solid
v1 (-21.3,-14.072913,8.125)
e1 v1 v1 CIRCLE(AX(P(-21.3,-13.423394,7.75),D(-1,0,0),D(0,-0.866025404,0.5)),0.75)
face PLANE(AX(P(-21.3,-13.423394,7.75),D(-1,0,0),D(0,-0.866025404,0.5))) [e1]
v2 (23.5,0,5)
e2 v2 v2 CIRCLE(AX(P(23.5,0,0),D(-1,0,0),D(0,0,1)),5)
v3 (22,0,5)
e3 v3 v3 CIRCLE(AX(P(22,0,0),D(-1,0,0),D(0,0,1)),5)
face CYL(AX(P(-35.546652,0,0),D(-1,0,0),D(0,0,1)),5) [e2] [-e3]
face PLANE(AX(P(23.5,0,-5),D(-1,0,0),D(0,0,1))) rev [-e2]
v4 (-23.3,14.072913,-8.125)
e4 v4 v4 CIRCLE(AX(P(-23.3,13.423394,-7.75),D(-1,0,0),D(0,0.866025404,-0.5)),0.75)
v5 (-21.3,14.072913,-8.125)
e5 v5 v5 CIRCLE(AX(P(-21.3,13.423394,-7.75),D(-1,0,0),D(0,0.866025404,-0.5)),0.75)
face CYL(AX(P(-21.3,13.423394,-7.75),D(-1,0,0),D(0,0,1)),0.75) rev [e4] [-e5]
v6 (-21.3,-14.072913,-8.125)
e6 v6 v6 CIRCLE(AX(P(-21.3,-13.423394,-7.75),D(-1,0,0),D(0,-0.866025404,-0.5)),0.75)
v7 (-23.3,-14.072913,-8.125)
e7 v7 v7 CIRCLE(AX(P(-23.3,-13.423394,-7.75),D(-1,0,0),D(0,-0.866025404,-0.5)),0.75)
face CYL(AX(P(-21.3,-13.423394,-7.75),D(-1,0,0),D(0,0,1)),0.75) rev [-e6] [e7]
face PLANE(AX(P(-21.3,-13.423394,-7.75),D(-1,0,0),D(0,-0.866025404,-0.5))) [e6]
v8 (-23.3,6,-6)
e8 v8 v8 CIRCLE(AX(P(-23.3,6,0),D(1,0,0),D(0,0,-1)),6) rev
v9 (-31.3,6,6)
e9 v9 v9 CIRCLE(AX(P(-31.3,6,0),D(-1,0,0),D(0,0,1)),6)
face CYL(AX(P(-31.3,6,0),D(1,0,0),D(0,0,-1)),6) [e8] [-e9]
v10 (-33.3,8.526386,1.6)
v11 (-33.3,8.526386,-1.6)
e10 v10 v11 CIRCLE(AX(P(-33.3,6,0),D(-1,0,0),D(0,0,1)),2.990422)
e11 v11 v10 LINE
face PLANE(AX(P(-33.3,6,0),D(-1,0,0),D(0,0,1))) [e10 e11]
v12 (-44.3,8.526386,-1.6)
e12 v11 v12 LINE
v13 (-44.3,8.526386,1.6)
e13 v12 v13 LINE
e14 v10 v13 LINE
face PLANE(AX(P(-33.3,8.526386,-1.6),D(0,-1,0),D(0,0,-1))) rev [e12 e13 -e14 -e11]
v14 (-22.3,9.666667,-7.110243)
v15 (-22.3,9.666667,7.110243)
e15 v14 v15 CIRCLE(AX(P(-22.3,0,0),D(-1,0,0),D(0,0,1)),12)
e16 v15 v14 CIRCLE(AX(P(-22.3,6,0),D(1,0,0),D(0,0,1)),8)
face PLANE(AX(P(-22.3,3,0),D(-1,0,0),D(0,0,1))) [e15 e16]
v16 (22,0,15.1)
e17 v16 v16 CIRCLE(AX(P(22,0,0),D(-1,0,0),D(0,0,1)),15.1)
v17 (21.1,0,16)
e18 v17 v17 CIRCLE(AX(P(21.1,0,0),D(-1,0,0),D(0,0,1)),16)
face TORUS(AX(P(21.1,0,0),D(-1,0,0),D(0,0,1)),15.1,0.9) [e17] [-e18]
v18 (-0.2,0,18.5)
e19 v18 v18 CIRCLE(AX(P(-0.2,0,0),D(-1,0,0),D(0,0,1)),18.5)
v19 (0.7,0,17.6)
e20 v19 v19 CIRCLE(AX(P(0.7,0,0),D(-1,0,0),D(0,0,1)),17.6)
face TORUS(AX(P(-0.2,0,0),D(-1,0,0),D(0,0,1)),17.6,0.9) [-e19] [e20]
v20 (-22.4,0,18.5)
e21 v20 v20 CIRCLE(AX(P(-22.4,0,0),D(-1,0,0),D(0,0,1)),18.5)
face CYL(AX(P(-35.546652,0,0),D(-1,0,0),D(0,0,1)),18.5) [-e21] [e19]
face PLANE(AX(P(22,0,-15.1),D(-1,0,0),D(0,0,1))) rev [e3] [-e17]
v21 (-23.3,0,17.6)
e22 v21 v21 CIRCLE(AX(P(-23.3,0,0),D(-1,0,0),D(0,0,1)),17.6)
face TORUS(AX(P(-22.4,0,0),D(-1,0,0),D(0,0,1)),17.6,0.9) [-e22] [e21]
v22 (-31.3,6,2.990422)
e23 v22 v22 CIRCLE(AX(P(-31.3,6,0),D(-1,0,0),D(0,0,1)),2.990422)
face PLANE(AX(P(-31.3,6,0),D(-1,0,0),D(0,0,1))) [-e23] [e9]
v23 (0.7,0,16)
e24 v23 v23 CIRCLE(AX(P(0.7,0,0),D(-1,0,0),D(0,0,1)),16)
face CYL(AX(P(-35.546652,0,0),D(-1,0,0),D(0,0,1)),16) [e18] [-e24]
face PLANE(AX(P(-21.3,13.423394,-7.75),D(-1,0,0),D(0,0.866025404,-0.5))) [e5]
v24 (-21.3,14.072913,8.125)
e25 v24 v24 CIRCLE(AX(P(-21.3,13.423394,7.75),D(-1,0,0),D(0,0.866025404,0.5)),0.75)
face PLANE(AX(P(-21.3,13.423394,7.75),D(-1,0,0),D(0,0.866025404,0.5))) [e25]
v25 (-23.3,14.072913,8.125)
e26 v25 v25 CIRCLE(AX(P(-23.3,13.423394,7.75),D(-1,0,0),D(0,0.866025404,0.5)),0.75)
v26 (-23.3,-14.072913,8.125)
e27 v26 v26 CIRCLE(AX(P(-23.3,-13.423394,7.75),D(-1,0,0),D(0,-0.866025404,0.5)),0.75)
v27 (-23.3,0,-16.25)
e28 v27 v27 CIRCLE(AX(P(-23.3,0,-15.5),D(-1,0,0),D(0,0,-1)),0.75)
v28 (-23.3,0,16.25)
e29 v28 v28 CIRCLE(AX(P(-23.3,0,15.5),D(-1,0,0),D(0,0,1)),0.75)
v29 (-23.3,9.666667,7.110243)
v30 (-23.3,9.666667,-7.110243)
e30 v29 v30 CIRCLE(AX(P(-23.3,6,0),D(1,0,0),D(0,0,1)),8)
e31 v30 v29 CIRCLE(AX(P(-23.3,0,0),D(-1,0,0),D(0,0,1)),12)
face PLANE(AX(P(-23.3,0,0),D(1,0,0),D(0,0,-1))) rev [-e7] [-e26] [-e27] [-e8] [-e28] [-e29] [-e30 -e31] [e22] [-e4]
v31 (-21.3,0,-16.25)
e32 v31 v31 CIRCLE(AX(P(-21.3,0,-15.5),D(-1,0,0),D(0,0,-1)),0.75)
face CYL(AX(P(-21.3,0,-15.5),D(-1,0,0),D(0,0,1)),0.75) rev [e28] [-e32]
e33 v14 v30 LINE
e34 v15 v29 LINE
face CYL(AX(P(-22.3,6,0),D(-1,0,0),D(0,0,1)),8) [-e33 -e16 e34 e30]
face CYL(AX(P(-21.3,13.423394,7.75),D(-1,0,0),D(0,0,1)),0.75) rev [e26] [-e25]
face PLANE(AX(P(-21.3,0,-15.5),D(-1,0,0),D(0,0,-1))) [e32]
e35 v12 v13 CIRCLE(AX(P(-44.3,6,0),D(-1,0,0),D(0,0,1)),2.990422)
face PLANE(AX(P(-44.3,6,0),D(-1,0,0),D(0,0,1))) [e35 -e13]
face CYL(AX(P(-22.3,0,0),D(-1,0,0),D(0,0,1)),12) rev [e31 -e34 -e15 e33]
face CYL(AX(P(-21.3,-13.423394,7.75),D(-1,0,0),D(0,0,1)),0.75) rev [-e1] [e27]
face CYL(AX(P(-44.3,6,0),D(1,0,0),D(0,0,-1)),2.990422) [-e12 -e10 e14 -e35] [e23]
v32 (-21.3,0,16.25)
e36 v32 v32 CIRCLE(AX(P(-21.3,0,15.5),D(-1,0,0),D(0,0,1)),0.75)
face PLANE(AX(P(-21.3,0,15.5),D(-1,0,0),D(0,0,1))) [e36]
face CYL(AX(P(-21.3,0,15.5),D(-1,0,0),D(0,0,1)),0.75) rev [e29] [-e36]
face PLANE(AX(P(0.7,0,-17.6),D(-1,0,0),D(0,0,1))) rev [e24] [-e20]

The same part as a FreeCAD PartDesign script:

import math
import FreeCAD as App
import Part
import Sketcher
from FreeCAD import Vector
Q = App.Units.Quantity

doc = App.newDocument("Part")
body = doc.addObject("PartDesign::Body", "Body")

sketch1 = body.newObject("Sketcher::SketchObject", "Sketch")
sketch1.AttachmentSupport = (doc.getObject("XZ_Plane"), [""])
sketch1.MapMode = "FlatFace"
sketch1.addGeometry(Part.LineSegment(Vector(-23.3, 0, 0), Vector(23.5, 0, 0)), False)
sketch1.addGeometry(Part.LineSegment(Vector(23.5, 0, 0), Vector(23.5, -5, 0)), False)
sketch1.addGeometry(Part.LineSegment(Vector(23.5, -5, 0), Vector(22, -5, 0)), False)
sketch1.addGeometry(Part.LineSegment(Vector(22, -5, 0), Vector(22, -15.1, 0)), False)
sketch1.addGeometry(Part.ArcOfCircle(Part.Circle(Vector(21.1, -15.1, 0), Vector(0, 0, 1), 0.9), math.radians(-90), math.radians(0)), False)
sketch1.addGeometry(Part.LineSegment(Vector(21.1, -16, 0), Vector(0.7, -16, 0)), False)
sketch1.addGeometry(Part.LineSegment(Vector(0.7, -16, 0), Vector(0.7, -17.6, 0)), False)
sketch1.addGeometry(Part.ArcOfCircle(Part.Circle(Vector(-0.2, -17.6, 0), Vector(0, 0, 1), 0.9), math.radians(-90), math.radians(0)), False)
sketch1.addGeometry(Part.LineSegment(Vector(-0.2, -18.5, 0), Vector(-22.4, -18.5, 0)), False)
sketch1.addGeometry(Part.ArcOfCircle(Part.Circle(Vector(-22.4, -17.6, 0), Vector(0, 0, 1), 0.9), math.radians(180), math.radians(270)), False)
sketch1.addGeometry(Part.LineSegment(Vector(-23.3, -17.6, 0), Vector(-23.3, 0, 0)), False)
sketch1.addConstraint(Sketcher.Constraint("Coincident", 0, 2, 1, 1))
sketch1.addConstraint(Sketcher.Constraint("Coincident", 1, 2, 2, 1))
sketch1.addConstraint(Sketcher.Constraint("Coincident", 2, 2, 3, 1))
sketch1.addConstraint(Sketcher.Constraint("Tangent", 3, 2, 4, 2))
sketch1.addConstraint(Sketcher.Constraint("Tangent", 4, 1, 5, 1))
sketch1.addConstraint(Sketcher.Constraint("Coincident", 5, 2, 6, 1))
sketch1.addConstraint(Sketcher.Constraint("Tangent", 6, 2, 7, 2))
sketch1.addConstraint(Sketcher.Constraint("Tangent", 7, 1, 8, 1))
sketch1.addConstraint(Sketcher.Constraint("Tangent", 8, 2, 9, 2))
sketch1.addConstraint(Sketcher.Constraint("Tangent", 9, 1, 10, 1))
sketch1.addConstraint(Sketcher.Constraint("Coincident", 10, 2, 0, 1))
sketch1.addConstraint(Sketcher.Constraint("Horizontal", 0))
sketch1.addConstraint(Sketcher.Constraint("Vertical", 1))
sketch1.addConstraint(Sketcher.Constraint("Horizontal", 2))
sketch1.addConstraint(Sketcher.Constraint("Vertical", 3))
sketch1.addConstraint(Sketcher.Constraint("Horizontal", 5))
sketch1.addConstraint(Sketcher.Constraint("Vertical", 6))
sketch1.addConstraint(Sketcher.Constraint("Horizontal", 8))
sketch1.addConstraint(Sketcher.Constraint("Vertical", 10))
sketch1.addConstraint(Sketcher.Constraint("Equal", 4, 7))
sketch1.addConstraint(Sketcher.Constraint("Equal", 7, 9))
sketch1.addConstraint(Sketcher.Constraint("PointOnObject", 0, 2, -1))
sketch1.addConstraint(Sketcher.Constraint("Radius", 4, Q("0.9 mm")))
sketch1.addConstraint(Sketcher.Constraint("DistanceY", 1, 2, 1, 1, Q("5 mm")))
sketch1.addConstraint(Sketcher.Constraint("DistanceX", 0, 1, 0, 2, Q("46.8 mm")))
sketch1.addConstraint(Sketcher.Constraint("DistanceX", 2, 2, 2, 1, Q("1.5 mm")))
sketch1.addConstraint(Sketcher.Constraint("DistanceX", 5, 2, 5, 1, Q("20.4 mm")))
sketch1.addConstraint(Sketcher.Constraint("DistanceY", 3, 2, 3, 1, Q("10.1 mm")))
sketch1.addConstraint(Sketcher.Constraint("DistanceY", 6, 2, 6, 1, Q("1.6 mm")))
sketch1.addConstraint(Sketcher.Constraint("DistanceX", -1, 1, 2, 2, Q("22 mm")))
revolution = body.newObject("PartDesign::Revolution", "Revolution")
revolution.Profile = sketch1
revolution.ReferenceAxis = (sketch1, ["H_Axis"])
revolution.Angle = 360

sketch2 = body.newObject("Sketcher::SketchObject", "Sketch001")
sketch2.AttachmentSupport = (doc.getObject("YZ_Plane"), [""])
sketch2.MapMode = "FlatFace"
sketch2.AttachmentOffset = App.Placement(Vector(0, 0, -23.3), App.Rotation())
sketch2.addGeometry(Part.Circle(Vector(6, 0, 0), Vector(0, 0, 1), 6), False)
sketch2.addConstraint(Sketcher.Constraint("PointOnObject", 0, 3, -1))
sketch2.addConstraint(Sketcher.Constraint("Diameter", 0, Q("12 mm")))
sketch2.addConstraint(Sketcher.Constraint("DistanceX", -1, 1, 0, 3, Q("6 mm")))
pad1 = body.newObject("PartDesign::Pad", "Pad")
pad1.Profile = sketch2
pad1.Length = 8
pad1.Reversed = True

sketch3 = body.newObject("Sketcher::SketchObject", "Sketch002")
sketch3.AttachmentSupport = (doc.getObject("YZ_Plane"), [""])
sketch3.MapMode = "FlatFace"
sketch3.AttachmentOffset = App.Placement(Vector(0, 0, -31.3), App.Rotation())
sketch3.addGeometry(Part.Circle(Vector(6, 0, 0), Vector(0, 0, 1), 3), False)
sketch3.addConstraint(Sketcher.Constraint("PointOnObject", 0, 3, -1))
sketch3.addConstraint(Sketcher.Constraint("DistanceX", -1, 1, 0, 3, Q("6 mm")))
sketch3.addConstraint(Sketcher.Constraint("Diameter", 0, Q("5.980845 mm")))
pad2 = body.newObject("PartDesign::Pad", "Pad001")
pad2.Profile = sketch3
pad2.Length = 13
pad2.Reversed = True

sketch4 = body.newObject("Sketcher::SketchObject", "Sketch003")
sketch4.AttachmentSupport = (doc.getObject("YZ_Plane"), [""])
sketch4.MapMode = "FlatFace"
sketch4.AttachmentOffset = App.Placement(Vector(0, 0, -44.3), App.Rotation())
sketch4.addGeometry(Part.LineSegment(Vector(8.5, -1.6, 0), Vector(8.5, 1.6, 0)), False)
sketch4.addGeometry(Part.ArcOfCircle(Part.Circle(Vector(6, 0, 0), Vector(0, 0, 1), 3), math.radians(-32), math.radians(32)), False)
sketch4.addConstraint(Sketcher.Constraint("Coincident", 0, 1, 1, 1))
sketch4.addConstraint(Sketcher.Constraint("Coincident", 1, 2, 0, 2))
sketch4.addConstraint(Sketcher.Constraint("Vertical", 0))
sketch4.addConstraint(Sketcher.Constraint("PointOnObject", 1, 3, -1))
sketch4.addConstraint(Sketcher.Constraint("DistanceY", 0, 1, 0, 2, Q("3.2 mm")))
sketch4.addConstraint(Sketcher.Constraint("DistanceX", -1, 1, 1, 3, Q("6 mm")))
sketch4.addConstraint(Sketcher.Constraint("Radius", 1, Q("2.990422 mm")))
pocket1 = body.newObject("PartDesign::Pocket", "Pocket")
pocket1.Profile = sketch4
pocket1.Length = 11
pocket1.Reversed = True

sketch5 = body.newObject("Sketcher::SketchObject", "Sketch004")
sketch5.AttachmentSupport = (doc.getObject("YZ_Plane"), [""])
sketch5.MapMode = "FlatFace"
sketch5.AttachmentOffset = App.Placement(Vector(0, 0, -23.3), App.Rotation())
sketch5.addGeometry(Part.ArcOfCircle(Part.Circle(Vector(6, 0, 0), Vector(0, 0, 1), 8), math.radians(63), math.radians(297)), False)
sketch5.addGeometry(Part.ArcOfCircle(Part.Circle(Vector(0, 0, 0), Vector(0, 0, 1), 12), math.radians(36), math.radians(324)), False)
sketch5.addConstraint(Sketcher.Constraint("Coincident", 0, 1, 1, 1))
sketch5.addConstraint(Sketcher.Constraint("Coincident", 1, 2, 0, 2))
sketch5.addConstraint(Sketcher.Constraint("Coincident", 1, 3, -1, 1))
sketch5.addConstraint(Sketcher.Constraint("PointOnObject", 0, 3, -1))
sketch5.addConstraint(Sketcher.Constraint("Radius", 0, Q("8 mm")))
sketch5.addConstraint(Sketcher.Constraint("Radius", 1, Q("12 mm")))
sketch5.addConstraint(Sketcher.Constraint("DistanceX", -1, 1, 0, 3, Q("6 mm")))
pocket2 = body.newObject("PartDesign::Pocket", "Pocket001")
pocket2.Profile = sketch5
pocket2.Length = 1
pocket2.Reversed = True

sketch6 = body.newObject("Sketcher::SketchObject", "Sketch005")
sketch6.AttachmentSupport = (doc.getObject("YZ_Plane"), [""])
sketch6.MapMode = "FlatFace"
sketch6.AttachmentOffset = App.Placement(Vector(0, 0, -23.3), App.Rotation())
sketch6.addGeometry(Part.Circle(Vector(0, 15.5, 0), Vector(0, 0, 1), 0.8), False)
sketch6.addConstraint(Sketcher.Constraint("PointOnObject", 0, 3, -2))
sketch6.addConstraint(Sketcher.Constraint("Diameter", 0, Q("1.5 mm")))
sketch6.addConstraint(Sketcher.Constraint("DistanceY", -1, 1, 0, 3, Q("15.5 mm")))
pocket3 = body.newObject("PartDesign::Pocket", "Pocket002")
pocket3.Profile = sketch6
pocket3.Length = 2
pocket3.Reversed = True
doc.recompute()

polarpattern = body.newObject("PartDesign::PolarPattern", "PolarPattern")
polarpattern.Originals = [pocket3]
polarpattern.Axis = (doc.getObject("X_Axis"), [""])
polarpattern.Angle = 360
polarpattern.Occurrences = 6
body.Tip = polarpattern

doc.recompute()
